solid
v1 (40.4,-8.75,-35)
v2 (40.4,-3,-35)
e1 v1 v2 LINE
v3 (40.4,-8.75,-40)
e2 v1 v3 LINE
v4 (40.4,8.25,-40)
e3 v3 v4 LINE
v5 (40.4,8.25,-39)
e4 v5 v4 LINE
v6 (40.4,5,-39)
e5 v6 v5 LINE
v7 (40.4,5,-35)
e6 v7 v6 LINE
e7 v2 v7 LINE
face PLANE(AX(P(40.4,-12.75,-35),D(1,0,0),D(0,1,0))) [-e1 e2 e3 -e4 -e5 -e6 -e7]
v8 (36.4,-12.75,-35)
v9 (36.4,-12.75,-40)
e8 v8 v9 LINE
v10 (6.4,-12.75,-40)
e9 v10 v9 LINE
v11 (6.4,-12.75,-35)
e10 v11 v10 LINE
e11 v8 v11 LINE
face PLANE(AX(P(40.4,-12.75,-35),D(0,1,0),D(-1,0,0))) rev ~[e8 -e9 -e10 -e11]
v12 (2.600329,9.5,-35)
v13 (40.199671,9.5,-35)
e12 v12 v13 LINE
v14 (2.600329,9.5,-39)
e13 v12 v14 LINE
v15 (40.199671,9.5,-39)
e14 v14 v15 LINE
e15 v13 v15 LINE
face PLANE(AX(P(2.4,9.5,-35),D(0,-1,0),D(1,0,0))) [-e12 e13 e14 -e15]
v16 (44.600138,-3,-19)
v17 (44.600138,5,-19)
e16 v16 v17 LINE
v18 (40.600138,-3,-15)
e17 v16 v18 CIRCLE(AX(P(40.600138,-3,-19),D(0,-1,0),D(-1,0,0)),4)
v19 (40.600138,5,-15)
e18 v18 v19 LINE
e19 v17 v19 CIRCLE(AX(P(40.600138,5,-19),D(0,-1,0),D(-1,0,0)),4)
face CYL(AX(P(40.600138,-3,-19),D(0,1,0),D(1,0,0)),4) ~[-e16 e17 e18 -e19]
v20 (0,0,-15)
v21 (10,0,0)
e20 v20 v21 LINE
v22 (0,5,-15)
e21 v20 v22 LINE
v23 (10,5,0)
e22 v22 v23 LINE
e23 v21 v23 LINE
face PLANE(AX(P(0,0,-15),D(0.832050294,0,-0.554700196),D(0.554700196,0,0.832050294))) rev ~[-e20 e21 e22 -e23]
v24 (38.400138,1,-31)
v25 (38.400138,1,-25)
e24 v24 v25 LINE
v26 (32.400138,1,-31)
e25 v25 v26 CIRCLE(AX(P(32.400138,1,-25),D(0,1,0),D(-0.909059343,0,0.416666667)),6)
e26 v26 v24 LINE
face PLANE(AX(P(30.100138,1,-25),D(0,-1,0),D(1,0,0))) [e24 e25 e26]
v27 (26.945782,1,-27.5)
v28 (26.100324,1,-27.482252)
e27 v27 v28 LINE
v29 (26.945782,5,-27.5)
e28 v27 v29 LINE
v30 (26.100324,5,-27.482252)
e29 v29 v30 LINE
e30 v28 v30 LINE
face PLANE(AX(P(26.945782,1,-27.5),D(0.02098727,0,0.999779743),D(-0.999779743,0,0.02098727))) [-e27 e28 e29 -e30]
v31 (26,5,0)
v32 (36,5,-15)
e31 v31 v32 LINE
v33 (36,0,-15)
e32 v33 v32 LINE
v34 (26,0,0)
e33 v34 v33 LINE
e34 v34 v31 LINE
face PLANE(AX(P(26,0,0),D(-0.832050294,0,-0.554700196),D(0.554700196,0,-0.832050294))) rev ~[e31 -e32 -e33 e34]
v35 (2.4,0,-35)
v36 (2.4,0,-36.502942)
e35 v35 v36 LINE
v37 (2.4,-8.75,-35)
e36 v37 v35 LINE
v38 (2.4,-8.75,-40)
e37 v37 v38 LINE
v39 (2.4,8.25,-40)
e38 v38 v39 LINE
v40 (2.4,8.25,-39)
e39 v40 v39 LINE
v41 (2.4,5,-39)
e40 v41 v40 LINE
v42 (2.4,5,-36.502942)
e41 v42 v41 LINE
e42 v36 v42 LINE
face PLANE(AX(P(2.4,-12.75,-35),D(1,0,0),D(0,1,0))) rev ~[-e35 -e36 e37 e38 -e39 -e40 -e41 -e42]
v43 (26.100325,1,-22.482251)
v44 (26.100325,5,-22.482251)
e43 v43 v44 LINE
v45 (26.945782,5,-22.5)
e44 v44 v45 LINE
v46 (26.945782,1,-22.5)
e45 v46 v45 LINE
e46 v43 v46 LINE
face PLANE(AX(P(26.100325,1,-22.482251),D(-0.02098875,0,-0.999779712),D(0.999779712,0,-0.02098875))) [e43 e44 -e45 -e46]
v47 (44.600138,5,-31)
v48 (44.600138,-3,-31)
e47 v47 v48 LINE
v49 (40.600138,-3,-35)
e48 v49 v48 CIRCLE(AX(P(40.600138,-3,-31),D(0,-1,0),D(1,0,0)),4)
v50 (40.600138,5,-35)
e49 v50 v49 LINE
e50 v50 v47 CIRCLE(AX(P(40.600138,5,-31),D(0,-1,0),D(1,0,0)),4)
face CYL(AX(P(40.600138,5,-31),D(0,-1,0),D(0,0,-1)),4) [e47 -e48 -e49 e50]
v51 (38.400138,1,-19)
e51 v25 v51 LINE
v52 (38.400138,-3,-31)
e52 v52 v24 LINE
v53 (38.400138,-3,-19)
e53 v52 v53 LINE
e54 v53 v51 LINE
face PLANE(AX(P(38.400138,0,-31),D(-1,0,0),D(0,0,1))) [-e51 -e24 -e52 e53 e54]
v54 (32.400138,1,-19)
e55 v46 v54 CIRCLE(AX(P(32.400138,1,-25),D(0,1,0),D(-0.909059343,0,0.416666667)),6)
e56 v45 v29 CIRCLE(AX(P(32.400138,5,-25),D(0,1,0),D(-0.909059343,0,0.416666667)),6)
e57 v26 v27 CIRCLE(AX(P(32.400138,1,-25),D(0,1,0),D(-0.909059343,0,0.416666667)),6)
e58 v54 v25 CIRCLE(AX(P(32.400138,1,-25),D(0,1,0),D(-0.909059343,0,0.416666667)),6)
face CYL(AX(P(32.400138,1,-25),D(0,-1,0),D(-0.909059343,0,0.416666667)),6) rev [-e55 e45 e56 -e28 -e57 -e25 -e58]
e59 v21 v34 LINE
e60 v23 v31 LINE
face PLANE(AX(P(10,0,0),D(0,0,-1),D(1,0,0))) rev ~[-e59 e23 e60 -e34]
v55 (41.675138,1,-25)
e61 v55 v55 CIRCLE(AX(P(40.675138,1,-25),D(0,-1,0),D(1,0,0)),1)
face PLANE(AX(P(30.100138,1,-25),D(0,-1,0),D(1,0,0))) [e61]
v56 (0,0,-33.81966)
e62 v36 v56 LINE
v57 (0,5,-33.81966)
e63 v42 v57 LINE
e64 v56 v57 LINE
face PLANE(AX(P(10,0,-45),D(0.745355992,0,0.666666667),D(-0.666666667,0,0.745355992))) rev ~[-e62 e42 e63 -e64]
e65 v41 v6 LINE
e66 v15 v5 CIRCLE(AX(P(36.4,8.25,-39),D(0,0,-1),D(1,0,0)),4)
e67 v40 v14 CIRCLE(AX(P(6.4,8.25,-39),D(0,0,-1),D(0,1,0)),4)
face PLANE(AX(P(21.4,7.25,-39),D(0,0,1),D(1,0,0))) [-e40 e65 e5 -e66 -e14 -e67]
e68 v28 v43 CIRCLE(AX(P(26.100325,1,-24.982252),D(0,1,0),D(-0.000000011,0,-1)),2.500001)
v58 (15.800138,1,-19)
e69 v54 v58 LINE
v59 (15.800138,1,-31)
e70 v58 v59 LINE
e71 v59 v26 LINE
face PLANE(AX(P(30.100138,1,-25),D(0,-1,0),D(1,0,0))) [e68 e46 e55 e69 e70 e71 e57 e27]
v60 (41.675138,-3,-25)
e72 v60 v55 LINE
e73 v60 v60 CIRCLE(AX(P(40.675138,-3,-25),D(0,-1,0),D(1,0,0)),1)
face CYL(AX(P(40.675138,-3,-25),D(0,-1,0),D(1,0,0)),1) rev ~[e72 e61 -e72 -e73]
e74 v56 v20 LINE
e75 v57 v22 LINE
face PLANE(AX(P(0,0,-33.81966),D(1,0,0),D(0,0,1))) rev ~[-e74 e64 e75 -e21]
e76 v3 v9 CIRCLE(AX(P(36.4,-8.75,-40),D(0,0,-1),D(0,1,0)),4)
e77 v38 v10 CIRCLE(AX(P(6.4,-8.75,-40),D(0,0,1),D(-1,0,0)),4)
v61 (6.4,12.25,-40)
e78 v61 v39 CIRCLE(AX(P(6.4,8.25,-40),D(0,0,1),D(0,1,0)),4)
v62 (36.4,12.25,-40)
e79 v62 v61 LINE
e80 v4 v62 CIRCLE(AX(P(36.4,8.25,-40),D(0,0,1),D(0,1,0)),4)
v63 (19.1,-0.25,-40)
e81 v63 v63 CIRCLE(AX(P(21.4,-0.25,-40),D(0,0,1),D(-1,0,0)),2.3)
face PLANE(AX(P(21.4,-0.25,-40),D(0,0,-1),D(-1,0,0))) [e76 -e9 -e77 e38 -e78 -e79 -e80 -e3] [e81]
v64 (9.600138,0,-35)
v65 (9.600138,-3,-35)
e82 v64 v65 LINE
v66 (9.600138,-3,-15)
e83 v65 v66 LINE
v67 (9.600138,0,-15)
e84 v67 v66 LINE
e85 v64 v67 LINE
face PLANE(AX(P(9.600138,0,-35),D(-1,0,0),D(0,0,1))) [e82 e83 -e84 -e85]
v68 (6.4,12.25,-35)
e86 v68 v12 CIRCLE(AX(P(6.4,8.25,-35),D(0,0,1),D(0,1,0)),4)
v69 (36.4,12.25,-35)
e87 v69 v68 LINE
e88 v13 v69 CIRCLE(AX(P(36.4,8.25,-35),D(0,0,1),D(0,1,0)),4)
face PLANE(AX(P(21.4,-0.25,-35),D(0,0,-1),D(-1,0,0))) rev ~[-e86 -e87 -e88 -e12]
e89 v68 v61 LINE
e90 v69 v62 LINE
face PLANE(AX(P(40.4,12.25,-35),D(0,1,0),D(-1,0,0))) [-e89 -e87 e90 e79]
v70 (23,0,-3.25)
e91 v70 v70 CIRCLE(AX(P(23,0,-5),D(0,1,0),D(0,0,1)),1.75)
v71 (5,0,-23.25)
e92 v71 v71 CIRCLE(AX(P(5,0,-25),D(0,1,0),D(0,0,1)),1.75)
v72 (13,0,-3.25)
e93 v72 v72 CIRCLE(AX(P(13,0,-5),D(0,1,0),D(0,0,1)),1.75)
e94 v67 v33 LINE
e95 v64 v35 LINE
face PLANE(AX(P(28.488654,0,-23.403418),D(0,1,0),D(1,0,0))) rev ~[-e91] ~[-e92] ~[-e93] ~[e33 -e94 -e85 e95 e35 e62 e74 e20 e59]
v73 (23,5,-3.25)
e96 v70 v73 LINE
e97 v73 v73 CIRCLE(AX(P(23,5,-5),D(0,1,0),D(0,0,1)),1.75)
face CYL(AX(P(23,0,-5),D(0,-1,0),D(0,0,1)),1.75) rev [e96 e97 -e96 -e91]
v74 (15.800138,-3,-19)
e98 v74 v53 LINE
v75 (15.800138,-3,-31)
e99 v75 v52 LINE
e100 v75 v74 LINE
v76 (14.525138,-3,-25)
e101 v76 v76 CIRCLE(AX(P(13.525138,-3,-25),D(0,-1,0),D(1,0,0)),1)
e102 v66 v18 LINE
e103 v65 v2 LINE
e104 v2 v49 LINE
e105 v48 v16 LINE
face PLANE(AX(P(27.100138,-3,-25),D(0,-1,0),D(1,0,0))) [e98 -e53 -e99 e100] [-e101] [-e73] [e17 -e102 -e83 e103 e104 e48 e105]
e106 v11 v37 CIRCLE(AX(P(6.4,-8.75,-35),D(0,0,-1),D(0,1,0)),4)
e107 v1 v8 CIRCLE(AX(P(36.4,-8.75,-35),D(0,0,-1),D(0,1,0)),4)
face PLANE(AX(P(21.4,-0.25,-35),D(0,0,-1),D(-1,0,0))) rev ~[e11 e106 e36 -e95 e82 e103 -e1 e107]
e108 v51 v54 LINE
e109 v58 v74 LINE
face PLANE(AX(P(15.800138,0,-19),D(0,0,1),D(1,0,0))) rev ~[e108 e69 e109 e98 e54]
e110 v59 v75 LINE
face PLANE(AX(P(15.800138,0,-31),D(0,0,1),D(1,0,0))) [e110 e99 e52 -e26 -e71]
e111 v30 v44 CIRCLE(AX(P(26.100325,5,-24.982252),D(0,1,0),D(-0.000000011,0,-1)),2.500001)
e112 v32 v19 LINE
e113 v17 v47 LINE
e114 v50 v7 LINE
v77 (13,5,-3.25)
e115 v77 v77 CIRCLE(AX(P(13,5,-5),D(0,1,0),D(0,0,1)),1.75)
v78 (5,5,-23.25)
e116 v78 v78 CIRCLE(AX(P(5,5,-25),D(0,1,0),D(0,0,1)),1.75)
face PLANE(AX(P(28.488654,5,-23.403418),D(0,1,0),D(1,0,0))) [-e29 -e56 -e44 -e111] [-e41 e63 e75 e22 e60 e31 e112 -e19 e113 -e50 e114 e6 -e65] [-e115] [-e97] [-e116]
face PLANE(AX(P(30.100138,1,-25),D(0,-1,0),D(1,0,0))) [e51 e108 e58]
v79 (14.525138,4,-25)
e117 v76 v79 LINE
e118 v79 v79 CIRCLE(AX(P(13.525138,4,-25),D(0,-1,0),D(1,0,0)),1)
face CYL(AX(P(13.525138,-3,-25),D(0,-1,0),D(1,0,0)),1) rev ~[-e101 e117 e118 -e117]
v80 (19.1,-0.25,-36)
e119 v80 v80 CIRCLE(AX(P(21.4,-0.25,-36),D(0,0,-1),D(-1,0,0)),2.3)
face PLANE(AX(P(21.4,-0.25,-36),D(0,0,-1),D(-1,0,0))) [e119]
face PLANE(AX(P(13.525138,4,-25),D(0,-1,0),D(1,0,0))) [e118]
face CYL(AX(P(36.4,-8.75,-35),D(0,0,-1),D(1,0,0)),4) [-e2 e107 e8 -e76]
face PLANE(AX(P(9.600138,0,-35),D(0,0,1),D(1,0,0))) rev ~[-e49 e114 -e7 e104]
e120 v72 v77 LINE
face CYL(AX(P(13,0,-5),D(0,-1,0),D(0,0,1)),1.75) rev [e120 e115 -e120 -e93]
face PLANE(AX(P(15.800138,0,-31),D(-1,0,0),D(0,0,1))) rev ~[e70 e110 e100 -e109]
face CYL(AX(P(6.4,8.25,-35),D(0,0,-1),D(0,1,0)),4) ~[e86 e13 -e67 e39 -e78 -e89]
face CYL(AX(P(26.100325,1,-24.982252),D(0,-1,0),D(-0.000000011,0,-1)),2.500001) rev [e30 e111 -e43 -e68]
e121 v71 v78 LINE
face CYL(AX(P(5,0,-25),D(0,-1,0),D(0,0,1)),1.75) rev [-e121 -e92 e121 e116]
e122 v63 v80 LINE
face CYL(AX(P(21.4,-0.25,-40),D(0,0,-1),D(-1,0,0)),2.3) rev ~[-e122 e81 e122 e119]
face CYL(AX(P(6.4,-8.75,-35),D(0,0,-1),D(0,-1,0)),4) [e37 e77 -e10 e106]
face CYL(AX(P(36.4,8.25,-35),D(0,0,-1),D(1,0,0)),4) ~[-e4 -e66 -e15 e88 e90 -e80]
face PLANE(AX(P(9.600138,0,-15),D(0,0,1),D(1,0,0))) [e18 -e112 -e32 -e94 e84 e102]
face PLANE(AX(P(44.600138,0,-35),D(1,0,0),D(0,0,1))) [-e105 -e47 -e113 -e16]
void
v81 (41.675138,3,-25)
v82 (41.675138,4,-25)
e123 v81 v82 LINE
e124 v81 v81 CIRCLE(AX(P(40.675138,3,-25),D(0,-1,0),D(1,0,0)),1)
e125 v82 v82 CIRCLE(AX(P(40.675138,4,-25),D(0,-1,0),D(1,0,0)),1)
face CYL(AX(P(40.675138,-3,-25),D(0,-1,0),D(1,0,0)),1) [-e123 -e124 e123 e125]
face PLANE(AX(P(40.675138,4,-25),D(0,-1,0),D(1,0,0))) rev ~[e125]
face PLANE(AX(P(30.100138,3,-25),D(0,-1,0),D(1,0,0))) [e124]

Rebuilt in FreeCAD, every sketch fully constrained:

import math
import FreeCAD as App
import Part
import Sketcher
Q = App.Units.Quantity


def edges_at(feature, points):
    """Names of the edges that pass closest to the given points."""
    edges = feature.Shape.Edges
    near = lambda p: min(range(len(edges)), key=lambda i: edges[i].distToShape(Part.Vertex(*p))[0])
    return sorted({f"Edge{near(p) + 1}" for p in points})


def add_polygon(sketch, points):
    """Adds a closed chain of lines whose ends are joined by coincident constraints."""
    first, n = sketch.GeometryCount, len(points)
    for a, b in zip(points, points[1:] + points[:1]):
        sketch.addGeometry(Part.LineSegment(App.Vector(*a, 0), App.Vector(*b, 0)), False)
    for i in range(n):
        sketch.addConstraint(Sketcher.Constraint("Coincident", first + i, 2, first + (i + 1) % n, 1))

doc = App.newDocument("Part")
body = doc.addObject("PartDesign::Body", "Body")

# Sketch on XZ plane
sketch1 = body.newObject("Sketcher::SketchObject", "Sketch")
sketch1.AttachmentSupport = (doc.getObject("XZ_Plane"), [""])
sketch1.MapMode = "FlatFace"
add_polygon(sketch1, [(0, -33.81966), (0, -15), (10, 0), (26, 0), (36, -15), (60, -15), (60, -35), (36, -35), (26, -45), (10, -45)])  # lines 0-9
sketch1.addGeometry(Part.Circle(App.Vector(13, -5, 0), App.Vector(0, 0, 1), 1.75), False)  # 10
sketch1.addGeometry(Part.Circle(App.Vector(23, -5, 0), App.Vector(0, 0, 1), 1.75), False)  # 11
sketch1.addGeometry(Part.Circle(App.Vector(5, -25, 0), App.Vector(0, 0, 1), 1.75), False)  # 12
sketch1.addConstraint([
    Sketcher.Constraint("Vertical", 0),
    Sketcher.Constraint("Horizontal", 2),
    Sketcher.Constraint("Horizontal", 4),
    Sketcher.Constraint("Vertical", 5),
    Sketcher.Constraint("Horizontal", 6),
    Sketcher.Constraint("Horizontal", 8),
    Sketcher.Constraint("Equal", 10, 11),
    Sketcher.Constraint("Equal", 11, 12),
    Sketcher.Constraint("PointOnObject", 0, 2, -2),
    Sketcher.Constraint("PointOnObject", 1, 2, -1),
    Sketcher.Constraint("Horizontal", 10, 3, 11, 3),
    Sketcher.Constraint("Horizontal", 0, 2, 3, 2),
    Sketcher.Constraint("Vertical", 3, 2, 6, 2),
    Sketcher.Constraint("Vertical", 2, 2, 7, 2),
    Sketcher.Constraint("Vertical", 1, 2, 8, 2),
    Sketcher.Constraint("Equal", 1, 3),
    Sketcher.Constraint("Diameter", 10, Q("3.5 mm")),
    Sketcher.Constraint("DistanceX", 2, 1, 2, 2, Q("16 mm")),
    Sketcher.Constraint("DistanceX", 4, 1, 4, 2, Q("24 mm")),
    Sketcher.Constraint("DistanceY", 5, 2, 5, 1, Q("20 mm")),
    Sketcher.Constraint("Angle", 7, Q("-135 deg")),
    Sketcher.Constraint("Distance", 9, Q("15 mm")),
    Sketcher.Constraint("DistanceX", -1, 1, 10, 3, Q("13 mm")),
    Sketcher.Constraint("DistanceY", 10, 3, -1, 1, Q("5 mm")),
    Sketcher.Constraint("DistanceX", -1, 1, 11, 3, Q("23 mm")),
    Sketcher.Constraint("DistanceX", -1, 1, 12, 3, Q("5 mm")),
    Sketcher.Constraint("DistanceY", 12, 3, -1, 1, Q("25 mm")),
    Sketcher.Constraint("DistanceY", 0, 2, -1, 1, Q("15 mm")),
    Sketcher.Constraint("DistanceX", -1, 1, 1, 2, Q("10 mm")),
])
pad1 = body.newObject("PartDesign::Pad", "Pad")
pad1.Profile = sketch1
pad1.Length = 5
pad1.Reversed = True

# Sketch on XZ plane
sketch2 = body.newObject("Sketcher::SketchObject", "Sketch001")
sketch2.AttachmentSupport = (doc.getObject("XZ_Plane"), [""])
sketch2.MapMode = "FlatFace"
add_polygon(sketch2, [(9.600138, -15), (9.600138, -35), (44.600138, -35), (44.600138, -15)])  # lines 0-3
add_polygon(sketch2, [(38.400138, -31), (15.800138, -31), (15.800138, -19), (38.400138, -19)])  # lines 4-7
sketch2.addConstraint([
    Sketcher.Constraint("Vertical", 0),
    Sketcher.Constraint("Horizontal", 1),
    Sketcher.Constraint("Vertical", 2),
    Sketcher.Constraint("Horizontal", 3),
    Sketcher.Constraint("Horizontal", 4),
    Sketcher.Constraint("Vertical", 5),
    Sketcher.Constraint("Horizontal", 6),
    Sketcher.Constraint("Vertical", 7),
    Sketcher.Constraint("DistanceX", 1, 1, 1, 2, Q("35 mm")),
    Sketcher.Constraint("DistanceY", 0, 2, 0, 1, Q("20 mm")),
    Sketcher.Constraint("DistanceY", 5, 1, 5, 2, Q("12 mm")),
    Sketcher.Constraint("DistanceX", 4, 2, 4, 1, Q("22.6 mm")),
    Sketcher.Constraint("DistanceY", 0, 2, -1, 1, Q("35 mm")),
    Sketcher.Constraint("DistanceY", 4, 2, -1, 1, Q("31 mm")),
    Sketcher.Constraint("DistanceX", 0, 2, 4, 2, Q("6.2 mm")),
    Sketcher.Constraint("DistanceX", -1, 1, 0, 2, Q("9.600138 mm")),
])
pad2 = body.newObject("PartDesign::Pad", "Pad001")
pad2.Profile = sketch2
pad2.Length = 3

# Sketch on XZ plane
sketch3 = body.newObject("Sketcher::SketchObject", "Sketch002")
sketch3.AttachmentSupport = (doc.getObject("XZ_Plane"), [""])
sketch3.MapMode = "FlatFace"
add_polygon(sketch3, [(44.600138, -15), (44.600138, -35), (60, -35), (60, -15)])  # lines 0-3
sketch3.addConstraint([
    Sketcher.Constraint("Vertical", 0),
    Sketcher.Constraint("Horizontal", 1),
    Sketcher.Constraint("Vertical", 2),
    Sketcher.Constraint("Horizontal", 3),
    Sketcher.Constraint("DistanceY", 0, 2, 0, 1, Q("20 mm")),
    Sketcher.Constraint("DistanceY", 0, 2, -1, 1, Q("35 mm")),
    Sketcher.Constraint("DistanceX", -1, 1, 1, 2, Q("60 mm")),
    Sketcher.Constraint("DistanceX", 1, 1, 1, 2, Q("15.399862 mm")),
])
pocket1 = body.newObject("PartDesign::Pocket", "Pocket")
pocket1.Profile = sketch3
pocket1.Type = "ThroughAll"

# Sketch on XZ plane
sketch4 = body.newObject("Sketcher::SketchObject", "Sketch003")
sketch4.AttachmentSupport = (doc.getObject("XZ_Plane"), [""])
sketch4.MapMode = "FlatFace"
sketch4.AttachmentOffset = App.Placement(App.Vector(0, 0, 3), App.Rotation())
sketch4.addGeometry([
    Part.Circle(App.Vector(13.525138, -25, 0), App.Vector(0, 0, 1), 1),
    Part.Circle(App.Vector(40.675138, -25, 0), App.Vector(0, 0, 1), 1),
], False)
sketch4.addConstraint([
    Sketcher.Constraint("Equal", 0, 1),
    Sketcher.Constraint("Horizontal", 0, 3, 1, 3),
    Sketcher.Constraint("Diameter", 0, Q("2 mm")),
    Sketcher.Constraint("DistanceY", 0, 3, -1, 1, Q("25 mm")),
    Sketcher.Constraint("DistanceX", 0, 3, 1, 3, Q("27.15 mm")),
    Sketcher.Constraint("DistanceX", -1, 1, 0, 3, Q("13.525138 mm")),
])
pocket2 = body.newObject("PartDesign::Pocket", "Pocket001")
pocket2.Profile = sketch4
pocket2.Length = 7

# Sketch on XY plane
sketch5 = body.newObject("Sketcher::SketchObject", "Sketch004")
sketch5.AttachmentSupport = (doc.getObject("XY_Plane"), [""])
sketch5.MapMode = "FlatFace"
sketch5.AttachmentOffset = App.Placement(App.Vector(0, 0, -35), App.Rotation())
add_polygon(sketch5, [(40.4, 12.25), (40.4, -12.75), (2.4, -12.75), (2.4, 12.25)])  # lines 0-3
sketch5.addConstraint([
    Sketcher.Constraint("Vertical", 0),
    Sketcher.Constraint("Horizontal", 1),
    Sketcher.Constraint("Vertical", 2),
    Sketcher.Constraint("Horizontal", 3),
    Sketcher.Constraint("DistanceX", 1, 2, 1, 1, Q("38 mm")),
    Sketcher.Constraint("DistanceY", 0, 2, 0, 1, Q("25 mm")),
    Sketcher.Constraint("DistanceX", -1, 1, 0, 2, Q("40.4 mm")),
    Sketcher.Constraint("DistanceY", 0, 2, -1, 1, Q("12.75 mm")),
])
pad3 = body.newObject("PartDesign::Pad", "Pad002")
pad3.Profile = sketch5
pad3.Length = 5
pad3.Reversed = True

# Sketch on XY plane
sketch6 = body.newObject("Sketcher::SketchObject", "Sketch005")
sketch6.AttachmentSupport = (doc.getObject("XY_Plane"), [""])
sketch6.MapMode = "FlatFace"
sketch6.AttachmentOffset = App.Placement(App.Vector(0, 0, -40), App.Rotation())
sketch6.addGeometry(Part.Circle(App.Vector(21.4, -0.25, 0), App.Vector(0, 0, 1), 2.3), False)
sketch6.addConstraint([
    Sketcher.Constraint("Diameter", 0, Q("4.6 mm")),
    Sketcher.Constraint("DistanceX", -1, 1, 0, 3, Q("21.4 mm")),
    Sketcher.Constraint("DistanceY", 0, 3, -1, 1, Q("0.25 mm")),
])
pocket3 = body.newObject("PartDesign::Pocket", "Pocket002")
pocket3.Profile = sketch6
pocket3.Length = 4
pocket3.Reversed = True
doc.recompute()

fillet = body.newObject("PartDesign::Fillet", "Fillet")
fillet.Base = (pocket3, edges_at(pocket3, [
    (2.4, -12.75, -37.5),
    (40.4, 12.25, -37.5),
    (40.4, -12.75, -37.5),
    (2.4, 12.25, -37.5),
    (44.6, 1, -35),
    (44.6, 1, -15),
]))
fillet.Radius = 4

# Sketch on XZ plane
sketch7 = body.newObject("Sketcher::SketchObject", "Sketch006")
sketch7.AttachmentSupport = (doc.getObject("XZ_Plane"), [""])
sketch7.MapMode = "FlatFace"
add_polygon(sketch7, [(15.800138, -19), (15.800138, -31), (38.400138, -31), (38.400138, -19)])  # lines 0-3
sketch7.addConstraint([
    Sketcher.Constraint("Vertical", 0),
    Sketcher.Constraint("Horizontal", 1),
    Sketcher.Constraint("Vertical", 2),
    Sketcher.Constraint("Horizontal", 3),
    Sketcher.Constraint("DistanceY", 0, 2, 0, 1, Q("12 mm")),
    Sketcher.Constraint("DistanceX", 1, 1, 1, 2, Q("22.6 mm")),
    Sketcher.Constraint("DistanceY", 0, 2, -1, 1, Q("31 mm")),
    Sketcher.Constraint("DistanceX", -1, 1, 0, 2, Q("15.800138 mm")),
])
pocket4 = body.newObject("PartDesign::Pocket", "Pocket003")
pocket4.Profile = sketch7
pocket4.Length = 3

# Sketch on XZ plane
sketch8 = body.newObject("Sketcher::SketchObject", "Sketch007")
sketch8.AttachmentSupport = (doc.getObject("XZ_Plane"), [""])
sketch8.MapMode = "FlatFace"
sketch8.AttachmentOffset = App.Placement(App.Vector(0, 0, -3), App.Rotation())
add_polygon(sketch8, [(44.400138, -31), (44.400138, -19), (15.800138, -19), (15.800138, -31)])  # lines 0-3
sketch8.addConstraint([
    Sketcher.Constraint("Vertical", 0),
    Sketcher.Constraint("Horizontal", 1),
    Sketcher.Constraint("Vertical", 2),
    Sketcher.Constraint("Horizontal", 3),
    Sketcher.Constraint("DistanceY", 0, 1, 0, 2, Q("12 mm")),
    Sketcher.Constraint("DistanceX", 1, 2, 1, 1, Q("28.6 mm")),
    Sketcher.Constraint("DistanceY", 0, 2, -1, 1, Q("19 mm")),
    Sketcher.Constraint("DistanceX", -1, 1, 0, 2, Q("44.400138 mm")),
])
pad4 = body.newObject("PartDesign::Pad", "Pad003")
pad4.Profile = sketch8
pad4.Length = 2

# Sketch on XZ plane
sketch9 = body.newObject("Sketcher::SketchObject", "Sketch008")
sketch9.AttachmentSupport = (doc.getObject("XZ_Plane"), [""])
sketch9.MapMode = "FlatFace"
sketch9.AttachmentOffset = App.Placement(App.Vector(0, 0, -1), App.Rotation())
sketch9.addGeometry([
    Part.LineSegment(App.Vector(26.945782, -22.5, 0), App.Vector(26.100325, -22.482251, 0)),
    Part.ArcOfCircle(Part.Circle(App.Vector(26.100325, -24.982252, 0), App.Vector(0, 0, 1), 2.500001), math.radians(90), math.radians(269.999999)),
    Part.LineSegment(App.Vector(26.100324, -27.482252, 0), App.Vector(26.945782, -27.5, 0)),
    Part.ArcOfCircle(Part.Circle(App.Vector(32.400138, -25, 0), App.Vector(0, 0, 1), 6), math.radians(-155.375682), math.radians(155.375682)),
], False)
sketch9.addConstraint([
    Sketcher.Constraint("Coincident", 0, 2, 1, 1),
    Sketcher.Constraint("Coincident", 1, 2, 2, 1),
    Sketcher.Constraint("Coincident", 2, 2, 3, 1),
    Sketcher.Constraint("Coincident", 3, 2, 0, 1),
    Sketcher.Constraint("Parallel", 0, 2),
    Sketcher.Constraint("Vertical", 1, 3, 0, 2),
    Sketcher.Constraint("Vertical", 0, 2, 1, 2),
    Sketcher.Constraint("Vertical", 2, 2, 3, 2),
    Sketcher.Constraint("Radius", 3, Q("6 mm")),
    Sketcher.Constraint("Radius", 1, Q("2.500001 mm")),
    Sketcher.Constraint("DistanceY", 3, 3, -1, 1, Q("25 mm")),
    Sketcher.Constraint("DistanceY", 1, 3, -1, 1, Q("24.982252 mm")),
    Sketcher.Constraint("DistanceX", -1, 1, 3, 3, Q("32.400138 mm")),
    Sketcher.Constraint("Distance", 0, Q("0.845644 mm")),
])
pocket5 = body.newObject("PartDesign::Pocket", "Pocket004")
pocket5.Profile = sketch9
pocket5.Length = 4

# Sketch on XZ plane
sketch10 = body.newObject("Sketcher::SketchObject", "Sketch009")
sketch10.AttachmentSupport = (doc.getObject("XZ_Plane"), [""])
sketch10.MapMode = "FlatFace"
sketch10.AttachmentOffset = App.Placement(App.Vector(0, 0, -5), App.Rotation())
add_polygon(sketch10, [(5.527864, -40), (31, -40), (26, -45), (10, -45)])  # lines 0-3
sketch10.addConstraint([
    Sketcher.Constraint("Horizontal", 0),
    Sketcher.Constraint("Horizontal", 2),
    Sketcher.Constraint("DistanceX", 2, 2, 2, 1, Q("16 mm")),
    Sketcher.Constraint("Angle", 1, Q("-135 deg")),
    Sketcher.Constraint("DistanceX", -1, 1, 0, 2, Q("31 mm")),
    Sketcher.Constraint("DistanceY", 0, 2, -1, 1, Q("40 mm")),
    Sketcher.Constraint("DistanceX", -1, 1, 1, 2, Q("26 mm")),
    Sketcher.Constraint("DistanceX", 0, 1, 0, 2, Q("25.472136 mm")),
])
pocket6 = body.newObject("PartDesign::Pocket", "Pocket005")
pocket6.Profile = sketch10
pocket6.Type = "ThroughAll"
pocket6.Reversed = True

# Sketch on XY plane
sketch11 = body.newObject("Sketcher::SketchObject", "Sketch010")
sketch11.AttachmentSupport = (doc.getObject("XY_Plane"), [""])
sketch11.MapMode = "FlatFace"
sketch11.AttachmentOffset = App.Placement(App.Vector(0, 0, -35), App.Rotation())
add_polygon(sketch11, [(2.4, 9.5), (2.4, 5), (40.4, 5), (40.4, 9.5)])  # lines 0-3
sketch11.addConstraint([
    Sketcher.Constraint("Vertical", 0),
    Sketcher.Constraint("Horizontal", 1),
    Sketcher.Constraint("Vertical", 2),
    Sketcher.Constraint("Horizontal", 3),
    Sketcher.Constraint("DistanceX", 1, 1, 1, 2, Q("38 mm")),
    Sketcher.Constraint("DistanceY", 0, 2, 0, 1, Q("4.5 mm")),
    Sketcher.Constraint("DistanceY", -1, 1, 0, 2, Q("5 mm")),
    Sketcher.Constraint("DistanceX", -1, 1, 0, 2, Q("2.4 mm")),
])
pocket7 = body.newObject("PartDesign::Pocket", "Pocket006")
pocket7.Profile = sketch11
pocket7.Length = 4

doc.recompute()
